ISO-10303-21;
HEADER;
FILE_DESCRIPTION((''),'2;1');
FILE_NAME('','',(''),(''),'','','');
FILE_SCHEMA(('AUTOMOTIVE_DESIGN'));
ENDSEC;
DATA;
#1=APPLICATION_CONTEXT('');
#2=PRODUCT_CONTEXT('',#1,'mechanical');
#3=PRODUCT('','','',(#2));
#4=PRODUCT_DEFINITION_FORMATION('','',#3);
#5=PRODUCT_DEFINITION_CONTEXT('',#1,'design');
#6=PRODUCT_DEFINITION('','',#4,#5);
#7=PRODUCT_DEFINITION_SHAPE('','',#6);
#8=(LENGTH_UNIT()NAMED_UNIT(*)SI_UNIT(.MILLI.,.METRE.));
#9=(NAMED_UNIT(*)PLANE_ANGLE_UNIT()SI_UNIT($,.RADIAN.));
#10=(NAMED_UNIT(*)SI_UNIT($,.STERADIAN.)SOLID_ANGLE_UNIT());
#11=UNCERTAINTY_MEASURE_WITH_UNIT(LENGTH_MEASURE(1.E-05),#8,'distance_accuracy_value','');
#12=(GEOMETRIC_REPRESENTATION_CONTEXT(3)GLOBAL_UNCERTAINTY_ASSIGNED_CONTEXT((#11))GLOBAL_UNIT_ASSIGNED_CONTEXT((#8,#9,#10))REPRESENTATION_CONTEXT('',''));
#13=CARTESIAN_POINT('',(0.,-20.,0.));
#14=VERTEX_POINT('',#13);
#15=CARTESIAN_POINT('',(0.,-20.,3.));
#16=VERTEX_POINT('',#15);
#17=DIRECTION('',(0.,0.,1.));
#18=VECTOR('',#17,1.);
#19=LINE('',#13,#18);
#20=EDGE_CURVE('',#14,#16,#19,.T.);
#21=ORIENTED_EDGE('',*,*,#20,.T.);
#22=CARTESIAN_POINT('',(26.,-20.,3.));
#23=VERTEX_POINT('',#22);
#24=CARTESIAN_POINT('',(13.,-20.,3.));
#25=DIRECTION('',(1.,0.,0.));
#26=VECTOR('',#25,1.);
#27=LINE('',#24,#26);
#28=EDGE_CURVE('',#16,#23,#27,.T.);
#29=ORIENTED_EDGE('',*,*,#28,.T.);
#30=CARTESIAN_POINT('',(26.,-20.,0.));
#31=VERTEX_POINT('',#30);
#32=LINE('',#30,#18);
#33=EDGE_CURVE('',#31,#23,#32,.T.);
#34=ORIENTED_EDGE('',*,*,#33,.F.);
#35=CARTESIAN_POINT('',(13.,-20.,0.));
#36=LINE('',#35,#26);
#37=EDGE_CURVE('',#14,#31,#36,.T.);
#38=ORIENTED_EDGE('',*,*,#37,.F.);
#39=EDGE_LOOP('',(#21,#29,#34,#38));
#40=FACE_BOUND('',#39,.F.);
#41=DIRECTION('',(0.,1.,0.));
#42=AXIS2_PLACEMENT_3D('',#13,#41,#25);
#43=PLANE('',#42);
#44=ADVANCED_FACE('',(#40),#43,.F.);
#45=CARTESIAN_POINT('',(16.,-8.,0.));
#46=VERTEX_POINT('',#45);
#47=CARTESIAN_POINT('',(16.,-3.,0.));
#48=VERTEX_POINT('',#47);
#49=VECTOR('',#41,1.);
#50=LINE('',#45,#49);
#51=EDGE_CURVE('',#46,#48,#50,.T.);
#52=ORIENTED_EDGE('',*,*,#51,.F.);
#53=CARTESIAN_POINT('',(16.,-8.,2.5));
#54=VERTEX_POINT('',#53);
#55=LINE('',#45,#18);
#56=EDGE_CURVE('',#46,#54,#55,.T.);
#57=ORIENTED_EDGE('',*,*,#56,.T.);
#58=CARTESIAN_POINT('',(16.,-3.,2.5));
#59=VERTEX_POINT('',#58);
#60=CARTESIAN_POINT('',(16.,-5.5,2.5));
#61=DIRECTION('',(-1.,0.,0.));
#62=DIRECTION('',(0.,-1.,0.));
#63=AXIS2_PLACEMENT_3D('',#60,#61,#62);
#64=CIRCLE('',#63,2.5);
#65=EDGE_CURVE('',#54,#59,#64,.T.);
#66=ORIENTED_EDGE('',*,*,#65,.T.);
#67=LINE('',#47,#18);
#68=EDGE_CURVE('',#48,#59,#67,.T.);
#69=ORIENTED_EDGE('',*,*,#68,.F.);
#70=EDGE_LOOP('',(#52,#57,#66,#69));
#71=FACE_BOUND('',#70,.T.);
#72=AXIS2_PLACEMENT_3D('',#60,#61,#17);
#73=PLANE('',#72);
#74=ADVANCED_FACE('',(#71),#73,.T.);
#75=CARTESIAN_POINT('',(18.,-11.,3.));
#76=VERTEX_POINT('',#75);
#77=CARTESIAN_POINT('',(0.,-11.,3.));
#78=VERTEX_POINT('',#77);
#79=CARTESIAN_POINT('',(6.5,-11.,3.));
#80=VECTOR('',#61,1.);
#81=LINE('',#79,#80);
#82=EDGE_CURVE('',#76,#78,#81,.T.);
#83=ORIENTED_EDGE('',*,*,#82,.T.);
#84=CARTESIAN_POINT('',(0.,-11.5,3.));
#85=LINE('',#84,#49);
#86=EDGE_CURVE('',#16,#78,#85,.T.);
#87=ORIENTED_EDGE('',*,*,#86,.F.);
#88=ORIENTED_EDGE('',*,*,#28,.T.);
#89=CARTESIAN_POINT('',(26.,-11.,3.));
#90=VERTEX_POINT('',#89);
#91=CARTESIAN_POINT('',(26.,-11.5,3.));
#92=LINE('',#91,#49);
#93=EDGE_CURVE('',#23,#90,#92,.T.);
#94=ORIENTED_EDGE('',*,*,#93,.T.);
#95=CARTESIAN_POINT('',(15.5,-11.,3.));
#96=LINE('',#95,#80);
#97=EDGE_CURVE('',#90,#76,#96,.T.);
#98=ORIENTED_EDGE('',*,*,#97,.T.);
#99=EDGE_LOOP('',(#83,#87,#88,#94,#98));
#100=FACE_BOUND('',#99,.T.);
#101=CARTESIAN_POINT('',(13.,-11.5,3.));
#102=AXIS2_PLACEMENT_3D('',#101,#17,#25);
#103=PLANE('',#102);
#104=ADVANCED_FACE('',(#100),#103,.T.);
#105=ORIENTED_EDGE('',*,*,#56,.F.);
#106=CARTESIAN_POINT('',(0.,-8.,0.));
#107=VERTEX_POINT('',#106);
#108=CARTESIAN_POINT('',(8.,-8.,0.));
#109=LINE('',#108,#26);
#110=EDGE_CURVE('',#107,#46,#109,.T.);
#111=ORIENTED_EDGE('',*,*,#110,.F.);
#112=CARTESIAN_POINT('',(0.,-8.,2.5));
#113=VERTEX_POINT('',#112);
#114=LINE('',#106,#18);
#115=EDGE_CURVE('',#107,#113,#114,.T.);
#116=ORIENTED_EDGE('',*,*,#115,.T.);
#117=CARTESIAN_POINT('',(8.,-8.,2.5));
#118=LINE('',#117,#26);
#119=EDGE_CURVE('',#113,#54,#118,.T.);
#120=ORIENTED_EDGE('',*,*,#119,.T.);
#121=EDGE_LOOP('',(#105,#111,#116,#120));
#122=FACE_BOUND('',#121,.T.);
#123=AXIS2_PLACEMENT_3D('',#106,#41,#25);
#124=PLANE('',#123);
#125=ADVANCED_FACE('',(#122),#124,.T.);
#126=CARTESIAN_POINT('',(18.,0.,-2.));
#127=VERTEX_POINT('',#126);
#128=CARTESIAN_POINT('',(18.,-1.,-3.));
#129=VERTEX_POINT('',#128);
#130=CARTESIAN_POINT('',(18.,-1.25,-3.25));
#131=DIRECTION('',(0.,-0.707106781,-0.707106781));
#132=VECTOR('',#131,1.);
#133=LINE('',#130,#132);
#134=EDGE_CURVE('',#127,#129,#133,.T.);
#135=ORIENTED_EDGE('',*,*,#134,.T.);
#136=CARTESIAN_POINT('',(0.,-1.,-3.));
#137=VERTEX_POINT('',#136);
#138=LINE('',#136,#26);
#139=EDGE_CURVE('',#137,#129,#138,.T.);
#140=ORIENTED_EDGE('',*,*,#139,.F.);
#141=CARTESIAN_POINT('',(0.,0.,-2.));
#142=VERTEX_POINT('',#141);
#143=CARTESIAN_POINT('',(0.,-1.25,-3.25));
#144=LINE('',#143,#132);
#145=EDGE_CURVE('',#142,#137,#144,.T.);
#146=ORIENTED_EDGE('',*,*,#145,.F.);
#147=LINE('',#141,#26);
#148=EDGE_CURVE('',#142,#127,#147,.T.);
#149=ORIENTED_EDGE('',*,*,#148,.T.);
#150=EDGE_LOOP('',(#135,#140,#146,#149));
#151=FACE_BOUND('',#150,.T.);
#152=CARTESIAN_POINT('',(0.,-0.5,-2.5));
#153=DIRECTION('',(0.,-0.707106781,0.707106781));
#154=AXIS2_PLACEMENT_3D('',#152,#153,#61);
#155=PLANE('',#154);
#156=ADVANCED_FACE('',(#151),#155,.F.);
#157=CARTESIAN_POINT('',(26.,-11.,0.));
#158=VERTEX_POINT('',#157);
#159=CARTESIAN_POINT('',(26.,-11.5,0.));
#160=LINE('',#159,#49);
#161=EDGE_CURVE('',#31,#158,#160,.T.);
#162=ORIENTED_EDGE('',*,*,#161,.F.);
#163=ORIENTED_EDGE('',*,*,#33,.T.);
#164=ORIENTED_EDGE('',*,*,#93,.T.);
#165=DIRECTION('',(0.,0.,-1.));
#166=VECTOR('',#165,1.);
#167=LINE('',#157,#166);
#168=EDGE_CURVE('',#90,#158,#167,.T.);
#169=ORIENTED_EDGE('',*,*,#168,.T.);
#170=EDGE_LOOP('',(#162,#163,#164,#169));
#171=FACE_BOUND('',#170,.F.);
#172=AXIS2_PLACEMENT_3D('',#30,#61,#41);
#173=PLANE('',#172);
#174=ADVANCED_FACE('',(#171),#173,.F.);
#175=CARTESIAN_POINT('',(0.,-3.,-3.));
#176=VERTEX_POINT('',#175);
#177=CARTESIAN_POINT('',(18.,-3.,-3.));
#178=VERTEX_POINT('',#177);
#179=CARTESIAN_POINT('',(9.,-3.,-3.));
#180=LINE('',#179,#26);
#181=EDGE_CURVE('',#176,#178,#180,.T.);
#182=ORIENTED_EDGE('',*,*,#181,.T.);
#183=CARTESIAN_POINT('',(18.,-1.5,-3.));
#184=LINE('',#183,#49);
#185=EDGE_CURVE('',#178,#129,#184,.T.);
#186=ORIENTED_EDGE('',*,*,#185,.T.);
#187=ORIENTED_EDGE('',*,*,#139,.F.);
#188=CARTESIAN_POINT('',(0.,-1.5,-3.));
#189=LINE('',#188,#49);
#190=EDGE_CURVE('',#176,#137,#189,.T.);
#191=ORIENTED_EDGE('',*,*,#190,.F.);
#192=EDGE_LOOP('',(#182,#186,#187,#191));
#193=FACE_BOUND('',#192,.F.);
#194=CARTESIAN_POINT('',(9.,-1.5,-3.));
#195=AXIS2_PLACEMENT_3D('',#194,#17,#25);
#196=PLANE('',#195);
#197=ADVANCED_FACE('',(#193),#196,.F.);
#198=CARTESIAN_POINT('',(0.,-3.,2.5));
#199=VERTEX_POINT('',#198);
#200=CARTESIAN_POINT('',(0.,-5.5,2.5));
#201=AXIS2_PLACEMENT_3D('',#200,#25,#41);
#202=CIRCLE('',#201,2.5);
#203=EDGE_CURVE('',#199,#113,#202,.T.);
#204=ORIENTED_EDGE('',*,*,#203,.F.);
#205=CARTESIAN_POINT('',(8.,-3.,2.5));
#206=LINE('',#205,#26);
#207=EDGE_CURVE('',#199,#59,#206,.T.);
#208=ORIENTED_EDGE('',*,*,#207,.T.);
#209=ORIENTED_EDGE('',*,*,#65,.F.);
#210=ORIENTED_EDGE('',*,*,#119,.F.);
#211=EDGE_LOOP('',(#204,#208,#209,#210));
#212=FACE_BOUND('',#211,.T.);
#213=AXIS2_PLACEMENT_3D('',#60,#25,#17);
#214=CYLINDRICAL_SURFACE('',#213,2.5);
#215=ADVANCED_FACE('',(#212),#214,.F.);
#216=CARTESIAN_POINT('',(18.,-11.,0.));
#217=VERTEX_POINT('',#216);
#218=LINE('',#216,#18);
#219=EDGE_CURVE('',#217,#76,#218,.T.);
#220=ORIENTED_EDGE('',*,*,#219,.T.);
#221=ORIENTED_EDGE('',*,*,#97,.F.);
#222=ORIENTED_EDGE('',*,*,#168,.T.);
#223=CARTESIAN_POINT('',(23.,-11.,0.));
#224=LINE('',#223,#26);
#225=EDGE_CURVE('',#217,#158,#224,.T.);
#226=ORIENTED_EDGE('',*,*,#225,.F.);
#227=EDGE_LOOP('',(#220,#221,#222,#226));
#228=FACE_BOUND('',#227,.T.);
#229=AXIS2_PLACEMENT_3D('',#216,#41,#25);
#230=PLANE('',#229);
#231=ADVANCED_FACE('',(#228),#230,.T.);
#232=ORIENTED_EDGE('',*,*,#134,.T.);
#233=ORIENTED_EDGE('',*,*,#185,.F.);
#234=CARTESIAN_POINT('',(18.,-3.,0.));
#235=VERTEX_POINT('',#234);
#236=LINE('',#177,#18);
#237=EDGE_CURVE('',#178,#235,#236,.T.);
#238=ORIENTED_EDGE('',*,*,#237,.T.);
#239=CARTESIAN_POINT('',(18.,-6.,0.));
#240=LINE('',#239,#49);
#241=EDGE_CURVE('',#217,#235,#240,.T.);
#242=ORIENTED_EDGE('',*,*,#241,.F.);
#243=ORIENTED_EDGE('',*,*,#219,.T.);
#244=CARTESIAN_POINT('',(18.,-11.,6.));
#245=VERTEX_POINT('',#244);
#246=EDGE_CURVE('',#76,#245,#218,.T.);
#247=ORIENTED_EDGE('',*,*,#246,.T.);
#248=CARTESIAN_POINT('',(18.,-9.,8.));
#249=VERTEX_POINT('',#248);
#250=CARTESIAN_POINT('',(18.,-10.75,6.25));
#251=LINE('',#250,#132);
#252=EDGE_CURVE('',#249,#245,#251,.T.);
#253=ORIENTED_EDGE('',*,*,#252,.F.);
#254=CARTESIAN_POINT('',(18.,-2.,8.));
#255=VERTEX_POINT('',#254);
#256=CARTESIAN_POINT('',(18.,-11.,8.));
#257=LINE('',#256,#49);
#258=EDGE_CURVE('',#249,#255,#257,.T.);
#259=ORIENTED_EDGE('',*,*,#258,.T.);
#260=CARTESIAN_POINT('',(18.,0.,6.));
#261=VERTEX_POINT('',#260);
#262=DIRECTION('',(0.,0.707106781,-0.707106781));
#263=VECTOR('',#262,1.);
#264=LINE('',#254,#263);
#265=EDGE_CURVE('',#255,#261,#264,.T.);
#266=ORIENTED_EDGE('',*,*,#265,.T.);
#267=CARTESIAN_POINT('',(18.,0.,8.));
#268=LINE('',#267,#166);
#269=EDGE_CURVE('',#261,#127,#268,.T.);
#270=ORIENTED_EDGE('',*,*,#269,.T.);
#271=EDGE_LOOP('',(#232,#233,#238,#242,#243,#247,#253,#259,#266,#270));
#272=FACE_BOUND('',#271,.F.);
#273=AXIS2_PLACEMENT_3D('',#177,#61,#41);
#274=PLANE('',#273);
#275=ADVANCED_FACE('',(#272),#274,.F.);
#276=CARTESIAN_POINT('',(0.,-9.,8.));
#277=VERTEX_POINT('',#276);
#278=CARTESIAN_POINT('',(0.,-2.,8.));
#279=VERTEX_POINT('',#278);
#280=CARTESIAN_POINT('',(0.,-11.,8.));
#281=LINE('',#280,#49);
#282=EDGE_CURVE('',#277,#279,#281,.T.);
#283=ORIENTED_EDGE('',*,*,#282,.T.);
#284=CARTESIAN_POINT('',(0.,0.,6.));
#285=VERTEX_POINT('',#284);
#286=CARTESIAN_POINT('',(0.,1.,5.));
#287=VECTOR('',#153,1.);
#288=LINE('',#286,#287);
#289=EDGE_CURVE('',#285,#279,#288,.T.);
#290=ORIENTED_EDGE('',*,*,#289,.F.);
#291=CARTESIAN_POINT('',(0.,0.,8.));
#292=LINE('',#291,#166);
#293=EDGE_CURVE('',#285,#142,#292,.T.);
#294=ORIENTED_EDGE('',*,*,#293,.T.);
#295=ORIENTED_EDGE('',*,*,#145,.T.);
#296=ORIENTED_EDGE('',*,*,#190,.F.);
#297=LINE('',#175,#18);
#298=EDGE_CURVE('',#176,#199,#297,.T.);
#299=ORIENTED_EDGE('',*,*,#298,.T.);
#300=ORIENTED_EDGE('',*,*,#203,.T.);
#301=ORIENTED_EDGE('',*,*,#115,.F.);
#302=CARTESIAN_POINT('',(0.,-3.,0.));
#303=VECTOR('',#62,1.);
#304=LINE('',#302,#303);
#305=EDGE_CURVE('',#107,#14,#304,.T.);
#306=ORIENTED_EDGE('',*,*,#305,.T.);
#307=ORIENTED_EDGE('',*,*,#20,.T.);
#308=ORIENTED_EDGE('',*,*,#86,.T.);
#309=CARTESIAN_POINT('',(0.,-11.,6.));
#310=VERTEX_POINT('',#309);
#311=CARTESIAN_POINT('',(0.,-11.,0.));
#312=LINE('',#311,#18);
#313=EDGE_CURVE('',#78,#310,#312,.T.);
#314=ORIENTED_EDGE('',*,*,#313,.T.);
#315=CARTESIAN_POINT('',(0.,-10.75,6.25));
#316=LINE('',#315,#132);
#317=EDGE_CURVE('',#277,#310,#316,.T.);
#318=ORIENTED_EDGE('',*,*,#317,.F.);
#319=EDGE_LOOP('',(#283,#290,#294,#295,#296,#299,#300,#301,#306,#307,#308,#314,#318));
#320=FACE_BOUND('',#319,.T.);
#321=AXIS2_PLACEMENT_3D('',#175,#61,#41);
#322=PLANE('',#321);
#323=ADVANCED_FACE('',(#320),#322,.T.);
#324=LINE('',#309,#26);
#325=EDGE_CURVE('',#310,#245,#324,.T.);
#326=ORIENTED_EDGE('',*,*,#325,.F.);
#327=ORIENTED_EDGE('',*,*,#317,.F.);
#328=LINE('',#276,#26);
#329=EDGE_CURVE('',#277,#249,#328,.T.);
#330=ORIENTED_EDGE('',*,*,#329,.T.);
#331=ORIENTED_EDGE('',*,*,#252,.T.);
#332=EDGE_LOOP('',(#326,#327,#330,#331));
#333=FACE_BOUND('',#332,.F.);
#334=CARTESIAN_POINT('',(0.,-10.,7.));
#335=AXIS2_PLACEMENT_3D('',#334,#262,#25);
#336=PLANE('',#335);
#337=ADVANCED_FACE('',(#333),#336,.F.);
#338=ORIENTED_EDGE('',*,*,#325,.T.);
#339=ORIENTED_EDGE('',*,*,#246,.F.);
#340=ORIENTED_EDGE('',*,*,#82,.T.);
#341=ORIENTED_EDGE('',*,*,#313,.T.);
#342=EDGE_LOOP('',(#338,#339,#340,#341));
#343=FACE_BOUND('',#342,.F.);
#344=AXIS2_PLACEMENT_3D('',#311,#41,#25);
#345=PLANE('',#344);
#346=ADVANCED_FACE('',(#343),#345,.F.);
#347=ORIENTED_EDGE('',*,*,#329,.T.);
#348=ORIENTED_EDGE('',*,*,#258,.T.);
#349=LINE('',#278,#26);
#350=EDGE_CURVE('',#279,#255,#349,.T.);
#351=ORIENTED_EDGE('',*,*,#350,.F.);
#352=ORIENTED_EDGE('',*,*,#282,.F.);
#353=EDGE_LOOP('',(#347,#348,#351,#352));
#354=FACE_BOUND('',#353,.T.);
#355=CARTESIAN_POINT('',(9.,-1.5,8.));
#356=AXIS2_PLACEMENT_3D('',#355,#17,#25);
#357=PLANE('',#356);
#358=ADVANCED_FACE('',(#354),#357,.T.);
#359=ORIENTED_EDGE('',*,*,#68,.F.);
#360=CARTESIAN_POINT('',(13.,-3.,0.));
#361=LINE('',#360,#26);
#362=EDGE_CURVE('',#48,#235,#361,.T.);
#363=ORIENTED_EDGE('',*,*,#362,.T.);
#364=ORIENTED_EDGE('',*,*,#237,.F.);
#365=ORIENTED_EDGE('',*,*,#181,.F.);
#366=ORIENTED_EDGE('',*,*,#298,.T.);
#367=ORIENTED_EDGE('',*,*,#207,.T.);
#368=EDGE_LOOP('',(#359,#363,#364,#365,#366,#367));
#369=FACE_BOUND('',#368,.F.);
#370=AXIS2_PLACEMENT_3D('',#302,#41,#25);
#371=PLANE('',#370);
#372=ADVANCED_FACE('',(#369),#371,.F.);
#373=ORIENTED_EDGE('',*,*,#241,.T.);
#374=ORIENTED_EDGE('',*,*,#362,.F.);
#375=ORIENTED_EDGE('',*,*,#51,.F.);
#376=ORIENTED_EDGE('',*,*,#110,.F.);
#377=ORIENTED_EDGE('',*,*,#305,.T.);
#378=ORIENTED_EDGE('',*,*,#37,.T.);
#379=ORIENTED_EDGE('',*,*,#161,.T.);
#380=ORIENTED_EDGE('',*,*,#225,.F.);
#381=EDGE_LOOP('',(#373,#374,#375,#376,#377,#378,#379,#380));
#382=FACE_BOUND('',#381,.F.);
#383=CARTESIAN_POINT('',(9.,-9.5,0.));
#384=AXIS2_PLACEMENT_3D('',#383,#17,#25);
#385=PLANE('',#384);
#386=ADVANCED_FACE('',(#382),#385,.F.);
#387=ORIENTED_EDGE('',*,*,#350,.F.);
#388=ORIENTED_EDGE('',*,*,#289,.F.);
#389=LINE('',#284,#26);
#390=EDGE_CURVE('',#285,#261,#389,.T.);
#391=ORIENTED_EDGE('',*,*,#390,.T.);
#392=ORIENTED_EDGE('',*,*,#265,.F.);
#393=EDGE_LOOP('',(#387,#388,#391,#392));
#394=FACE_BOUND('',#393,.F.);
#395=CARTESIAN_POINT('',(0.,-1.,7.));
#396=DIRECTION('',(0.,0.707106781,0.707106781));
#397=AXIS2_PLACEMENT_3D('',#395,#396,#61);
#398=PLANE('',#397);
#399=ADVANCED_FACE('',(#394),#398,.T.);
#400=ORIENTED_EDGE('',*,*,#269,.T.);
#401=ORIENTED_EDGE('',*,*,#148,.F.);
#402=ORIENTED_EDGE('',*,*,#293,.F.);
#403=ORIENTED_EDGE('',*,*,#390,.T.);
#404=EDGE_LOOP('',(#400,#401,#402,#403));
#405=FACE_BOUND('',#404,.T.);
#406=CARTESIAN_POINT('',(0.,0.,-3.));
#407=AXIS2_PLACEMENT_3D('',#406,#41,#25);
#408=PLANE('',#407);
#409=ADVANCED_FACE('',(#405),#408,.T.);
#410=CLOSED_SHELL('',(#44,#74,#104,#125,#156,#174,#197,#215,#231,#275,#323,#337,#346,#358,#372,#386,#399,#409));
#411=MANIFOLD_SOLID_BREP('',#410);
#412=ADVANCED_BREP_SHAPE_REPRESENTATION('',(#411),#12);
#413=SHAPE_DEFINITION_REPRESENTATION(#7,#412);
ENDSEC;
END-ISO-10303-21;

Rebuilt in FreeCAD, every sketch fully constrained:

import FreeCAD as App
import Part
import Sketcher

V = App.Vector
Q = App.Units.Quantity


def edges_at(feature, points):
    """Names of the edges that pass closest to the given points."""
    edges = feature.Shape.Edges
    near = lambda p: min(range(len(edges)), key=lambda i: edges[i].distToShape(Part.Vertex(*p))[0])
    return sorted({f"Edge{near(p) + 1}" for p in points})


def add_polygon(sketch, points):
    """Adds a closed chain of lines whose ends are joined by coincident constraints."""
    first, n = sketch.GeometryCount, len(points)
    for a, b in zip(points, points[1:] + points[:1]):
        sketch.addGeometry(Part.LineSegment(App.Vector(*a, 0), App.Vector(*b, 0)), False)
    for i in range(n):
        sketch.addConstraint(Sketcher.Constraint("Coincident", first + i, 2, first + (i + 1) % n, 1))

doc = App.newDocument("Part")
body = doc.addObject("PartDesign::Body", "Body")

sketch1 = doc.addObject("Sketcher::SketchObject", "Sketch")
body.addObject(sketch1)
sketch1.AttachmentSupport = (doc.XY_Plane, [""])
sketch1.MapMode = "FlatFace"
add_polygon(sketch1, [(18, -1), (18, -11), (28, -11), (28, -1)])
sketch1.addConstraint([
    Sketcher.Constraint("Vertical", 0),
    Sketcher.Constraint("Horizontal", 1),
    Sketcher.Constraint("Vertical", 2),
    Sketcher.Constraint("Horizontal", 3),
    Sketcher.Constraint("Equal", 3, 0),
    Sketcher.Constraint("DistanceX", 1, 1, 1, 2, Q("10 mm")),
    Sketcher.Constraint("DistanceX", -1, 1, 0, 2, Q("18 mm")),
    Sketcher.Constraint("DistanceY", 0, 2, -1, 1, Q("11 mm")),
])
pad1 = doc.addObject("PartDesign::Pad", "Pad")
body.addObject(pad1)
pad1.Profile = sketch1
pad1.Length = 10
body2 = doc.addObject("PartDesign::Body", "Body001")

sketch2 = doc.addObject("Sketcher::SketchObject", "Sketch001")
body2.addObject(sketch2)
sketch2.AttachmentSupport = (doc.getObject("YZ_Plane001"), [""])
sketch2.MapMode = "FlatFace"
sketch2.AttachmentOffset = App.Placement(V(0, 0, 16), App.Rotation())
sketch2.addGeometry(Part.Circle(V(-5.5, 2.5, 0), V(0, 0, 1), 2.5), False)
sketch2.addConstraint([
    Sketcher.Constraint("Diameter", 0, Q("5 mm")),
    Sketcher.Constraint("DistanceX", 0, 3, -1, 1, Q("5.5 mm")),
    Sketcher.Constraint("DistanceY", -1, 1, 0, 3, Q("2.5 mm")),
])
pad2 = doc.addObject("PartDesign::Pad", "Pad001")
body2.addObject(pad2)
pad2.Profile = sketch2
pad2.Length = 16
pad2.Reversed = True
body3 = doc.addObject("PartDesign::Body", "Body002")

sketch3 = doc.addObject("Sketcher::SketchObject", "Sketch002")
body3.addObject(sketch3)
sketch3.AttachmentSupport = (doc.getObject("XY_Plane002"), [""])
sketch3.MapMode = "FlatFace"
add_polygon(sketch3, [(0, -3), (0, -8), (16, -8), (16, -3)])
sketch3.addConstraint([
    Sketcher.Constraint("Vertical", 0),
    Sketcher.Constraint("Horizontal", 1),
    Sketcher.Constraint("Vertical", 2),
    Sketcher.Constraint("Horizontal", 3),
    Sketcher.Constraint("PointOnObject", 0, 2, -2),
    Sketcher.Constraint("DistanceX", 1, 1, 1, 2, Q("16 mm")),
    Sketcher.Constraint("DistanceY", 0, 2, 0, 1, Q("5 mm")),
    Sketcher.Constraint("DistanceY", 0, 2, -1, 1, Q("8 mm")),
])
pad3 = doc.addObject("PartDesign::Pad", "Pad002")
body3.addObject(pad3)
pad3.Profile = sketch3
pad3.Length = 2.5
doc.recompute()

boolean = doc.addObject("PartDesign::Boolean", "Boolean")
body3.addObject(boolean)
boolean.Type = "Fuse"
boolean.addObjects([body2])
body4 = doc.addObject("PartDesign::Body", "Body003")

sketch4 = doc.addObject("Sketcher::SketchObject", "Sketch003")
body4.addObject(sketch4)
sketch4.AttachmentSupport = (doc.getObject("XY_Plane003"), [""])
sketch4.MapMode = "FlatFace"
sketch4.AttachmentOffset = App.Placement(V(0, 0, -3), App.Rotation())
add_polygon(sketch4, [(0, 0), (0, -3), (18, -3), (18, 0)])
sketch4.addConstraint([
    Sketcher.Constraint("Vertical", 0),
    Sketcher.Constraint("Horizontal", 1),
    Sketcher.Constraint("Vertical", 2),
    Sketcher.Constraint("Horizontal", 3),
    Sketcher.Constraint("Coincident", 3, 2, -1, 1),
    Sketcher.Constraint("DistanceX", 1, 1, 1, 2, Q("18 mm")),
    Sketcher.Constraint("DistanceY", 0, 2, 0, 1, Q("3 mm")),
])
pad4 = doc.addObject("PartDesign::Pad", "Pad003")
body4.addObject(pad4)
pad4.Profile = sketch4
pad4.Length = 11
body5 = doc.addObject("PartDesign::Body", "Body004")

sketch5 = doc.addObject("Sketcher::SketchObject", "Sketch004")
body5.addObject(sketch5)
sketch5.AttachmentSupport = (doc.getObject("XY_Plane004"), [""])
sketch5.MapMode = "FlatFace"
add_polygon(sketch5, [(0, 0), (0, -11), (18, -11), (18, 0)])
sketch5.addConstraint([
    Sketcher.Constraint("Vertical", 0),
    Sketcher.Constraint("Horizontal", 1),
    Sketcher.Constraint("Vertical", 2),
    Sketcher.Constraint("Horizontal", 3),
    Sketcher.Constraint("Coincident", 3, 2, -1, 1),
    Sketcher.Constraint("DistanceX", 1, 1, 1, 2, Q("18 mm")),
    Sketcher.Constraint("DistanceY", 0, 2, 0, 1, Q("11 mm")),
])
pad5 = doc.addObject("PartDesign::Pad", "Pad004")
body5.addObject(pad5)
pad5.Profile = sketch5
pad5.Length = 8
body6 = doc.addObject("PartDesign::Body", "Body005")

sketch6 = doc.addObject("Sketcher::SketchObject", "Sketch005")
body6.addObject(sketch6)
sketch6.AttachmentSupport = (doc.getObject("XY_Plane005"), [""])
sketch6.MapMode = "FlatFace"
add_polygon(sketch6, [(0, -8), (0, -11), (18, -11), (18, -8)])
sketch6.addConstraint([
    Sketcher.Constraint("Vertical", 0),
    Sketcher.Constraint("Horizontal", 1),
    Sketcher.Constraint("Vertical", 2),
    Sketcher.Constraint("Horizontal", 3),
    Sketcher.Constraint("PointOnObject", 0, 2, -2),
    Sketcher.Constraint("DistanceX", 1, 1, 1, 2, Q("18 mm")),
    Sketcher.Constraint("DistanceY", 0, 2, 0, 1, Q("3 mm")),
    Sketcher.Constraint("DistanceY", 0, 2, -1, 1, Q("11 mm")),
])
pad6 = doc.addObject("PartDesign::Pad", "Pad005")
body6.addObject(pad6)
pad6.Profile = sketch6
pad6.Length = 8
body7 = doc.addObject("PartDesign::Body", "Body006")

sketch7 = doc.addObject("Sketcher::SketchObject", "Sketch006")
body7.addObject(sketch7)
sketch7.AttachmentSupport = (doc.getObject("XY_Plane006"), [""])
sketch7.MapMode = "FlatFace"
add_polygon(sketch7, [(0, -3), (0, -20), (26, -20), (26, -3)])
sketch7.addConstraint([
    Sketcher.Constraint("Vertical", 0),
    Sketcher.Constraint("Horizontal", 1),
    Sketcher.Constraint("Vertical", 2),
    Sketcher.Constraint("Horizontal", 3),
    Sketcher.Constraint("PointOnObject", 0, 2, -2),
    Sketcher.Constraint("DistanceX", 1, 1, 1, 2, Q("26 mm")),
    Sketcher.Constraint("DistanceY", 0, 2, 0, 1, Q("17 mm")),
    Sketcher.Constraint("DistanceY", 0, 2, -1, 1, Q("20 mm")),
])
pad7 = doc.addObject("PartDesign::Pad", "Pad006")
body7.addObject(pad7)
pad7.Profile = sketch7
pad7.Length = 3
doc.recompute()

boolean2 = doc.addObject("PartDesign::Boolean", "Boolean001")
body7.addObject(boolean2)
boolean2.Type = "Fuse"
boolean2.addObjects([body4])
doc.recompute()

boolean3 = doc.addObject("PartDesign::Boolean", "Boolean002")
body7.addObject(boolean3)
boolean3.Type = "Fuse"
boolean3.addObjects([body5])
doc.recompute()

boolean4 = doc.addObject("PartDesign::Boolean", "Boolean003")
body7.addObject(boolean4)
boolean4.Type = "Fuse"
boolean4.addObjects([body6])
doc.recompute()

boolean5 = doc.addObject("PartDesign::Boolean", "Boolean004")
body7.addObject(boolean5)
boolean5.Type = "Cut"
boolean5.addObjects([body3])
doc.recompute()

chamfer = doc.addObject("PartDesign::Chamfer", "Chamfer")
body7.addObject(chamfer)
chamfer.Base = (boolean5, edges_at(boolean5, [(9, -11, 8), (9, 0, 8)]))
chamfer.Size = 2
doc.recompute()

chamfer2 = doc.addObject("PartDesign::Chamfer", "Chamfer001")
body7.addObject(chamfer2)
chamfer2.Base = (chamfer, edges_at(chamfer, [(9, 0, -3)]))
chamfer2.Size = 1
doc.recompute()

boolean6 = doc.addObject("PartDesign::Boolean", "Boolean005")
body7.addObject(boolean6)
boolean6.Type = "Cut"
boolean6.addObjects([body])

doc.recompute()
